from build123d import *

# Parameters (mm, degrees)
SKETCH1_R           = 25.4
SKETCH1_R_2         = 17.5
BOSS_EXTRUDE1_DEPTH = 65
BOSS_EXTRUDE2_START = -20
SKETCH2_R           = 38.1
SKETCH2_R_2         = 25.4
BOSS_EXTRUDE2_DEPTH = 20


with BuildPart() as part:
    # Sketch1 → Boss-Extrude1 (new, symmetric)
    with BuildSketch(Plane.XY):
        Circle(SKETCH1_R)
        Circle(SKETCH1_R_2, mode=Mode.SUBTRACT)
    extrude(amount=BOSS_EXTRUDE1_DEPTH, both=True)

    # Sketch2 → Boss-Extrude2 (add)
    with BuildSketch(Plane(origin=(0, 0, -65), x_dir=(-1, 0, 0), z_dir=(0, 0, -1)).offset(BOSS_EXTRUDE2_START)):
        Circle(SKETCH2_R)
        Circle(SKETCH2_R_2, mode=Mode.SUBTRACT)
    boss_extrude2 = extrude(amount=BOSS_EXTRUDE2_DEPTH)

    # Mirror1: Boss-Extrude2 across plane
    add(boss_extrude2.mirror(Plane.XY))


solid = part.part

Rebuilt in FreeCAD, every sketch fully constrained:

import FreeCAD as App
import Part
import Sketcher

V = App.Vector
Q = App.Units.Quantity

doc = App.newDocument("Part")
body = doc.addObject("PartDesign::Body", "Body")

sketch1 = doc.addObject("Sketcher::SketchObject", "Sketch")
body.addObject(sketch1)
sketch1.AttachmentSupport = (doc.XY_Plane, [""])
sketch1.MapMode = "FlatFace"
sketch1.addGeometry([
    Part.Circle(V(0, 0, 0), V(0, 0, 1), 25),
    Part.Circle(V(0, 0, 0), V(0, 0, 1), 18),
], False)
sketch1.addConstraint([
    Sketcher.Constraint("Coincident", 0, 3, -1, 1),
    Sketcher.Constraint("Coincident", 1, 3, -1, 1),
    Sketcher.Constraint("Diameter", 1, Q("35 mm")),
    Sketcher.Constraint("Diameter", 0, Q("50.8 mm")),
])
pad1 = doc.addObject("PartDesign::Pad", "Pad")
body.addObject(pad1)
pad1.Profile = sketch1
pad1.Length = 130
pad1.Midplane = True

sketch2 = doc.addObject("Sketcher::SketchObject", "Sketch001")
body.addObject(sketch2)
sketch2.AttachmentSupport = (doc.XY_Plane, [""])
sketch2.MapMode = "FlatFace"
sketch2.AttachmentOffset = App.Placement(V(0, 0, -45), App.Rotation())
sketch2.addGeometry([
    Part.Circle(V(0, 0, 0), V(0, 0, 1), 38),
    Part.Circle(V(0, 0, 0), V(0, 0, 1), 25),
], False)
sketch2.addConstraint([
    Sketcher.Constraint("Coincident", 0, 3, -1, 1),
    Sketcher.Constraint("Coincident", 1, 3, -1, 1),
    Sketcher.Constraint("Diameter", 0, Q("76.2 mm")),
    Sketcher.Constraint("Diameter", 1, Q("50.8 mm")),
])
pad2 = doc.addObject("PartDesign::Pad", "Pad001")
body.addObject(pad2)
pad2.Profile = sketch2
pad2.Length = 20
pad2.Reversed = True
doc.recompute()

mirrored = doc.addObject("PartDesign::Mirrored", "Mirrored")
body.addObject(mirrored)
mirrored.Originals = [pad2]
mirrored.MirrorPlane = (doc.XY_Plane, [""])
body.Tip = mirrored

doc.recompute()
